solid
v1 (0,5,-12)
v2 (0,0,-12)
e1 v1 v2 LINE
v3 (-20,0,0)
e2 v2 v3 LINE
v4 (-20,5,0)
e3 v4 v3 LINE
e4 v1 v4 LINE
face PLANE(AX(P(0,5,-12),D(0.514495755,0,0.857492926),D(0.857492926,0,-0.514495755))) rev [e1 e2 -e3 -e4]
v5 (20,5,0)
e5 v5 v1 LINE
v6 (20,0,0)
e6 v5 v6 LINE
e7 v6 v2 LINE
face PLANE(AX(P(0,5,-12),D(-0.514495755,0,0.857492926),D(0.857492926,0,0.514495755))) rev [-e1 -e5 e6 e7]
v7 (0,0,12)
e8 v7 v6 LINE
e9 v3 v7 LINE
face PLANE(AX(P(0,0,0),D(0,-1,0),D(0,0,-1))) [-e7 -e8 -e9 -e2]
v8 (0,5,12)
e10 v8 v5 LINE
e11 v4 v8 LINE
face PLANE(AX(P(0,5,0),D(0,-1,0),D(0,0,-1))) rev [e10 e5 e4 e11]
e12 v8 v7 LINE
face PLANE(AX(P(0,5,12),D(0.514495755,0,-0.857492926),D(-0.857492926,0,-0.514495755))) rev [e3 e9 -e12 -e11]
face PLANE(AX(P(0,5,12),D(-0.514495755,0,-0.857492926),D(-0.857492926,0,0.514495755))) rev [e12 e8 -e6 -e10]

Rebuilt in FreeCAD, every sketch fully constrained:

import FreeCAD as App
import Part
import Sketcher

V = App.Vector
Q = App.Units.Quantity

doc = App.newDocument("Part")
body = doc.addObject("PartDesign::Body", "Body")

# Sketch on XZ plane
sketch1 = body.newObject("Sketcher::SketchObject", "Sketch")
sketch1.AttachmentSupport = (doc.getObject("XZ_Plane"), [""])
sketch1.MapMode = "FlatFace"
sketch1.addGeometry([
    Part.LineSegment(V(-20, 0, 0), V(0, 12, 0)),
    Part.LineSegment(V(0, 12, 0), V(20, 0, 0)),
    Part.LineSegment(V(20, 0, 0), V(0, -12, 0)),
    Part.LineSegment(V(0, -12, 0), V(-20, 0, 0)),
], False)
sketch1.addConstraint([
    Sketcher.Constraint("Coincident", 0, 2, 1, 1),
    Sketcher.Constraint("Coincident", 1, 2, 2, 1),
    Sketcher.Constraint("Coincident", 2, 2, 3, 1),
    Sketcher.Constraint("Coincident", 3, 2, 0, 1),
    Sketcher.Constraint("Symmetric", 0, 2, 2, 2, -1, 1),
    Sketcher.Constraint("Symmetric", 1, 2, 3, 2, -1, 1),
    Sketcher.Constraint("PointOnObject", 0, 2, -2),
    Sketcher.Constraint("PointOnObject", 1, 2, -1),
    Sketcher.Constraint("DistanceY", -1, 1, 0, 2, Q("12 mm")),
    Sketcher.Constraint("DistanceX", -1, 1, 1, 2, Q("20 mm")),
])
pad1 = body.newObject("PartDesign::Pad", "Pad")
pad1.Profile = sketch1
pad1.Length = 5
pad1.Reversed = True

doc.recompute()
